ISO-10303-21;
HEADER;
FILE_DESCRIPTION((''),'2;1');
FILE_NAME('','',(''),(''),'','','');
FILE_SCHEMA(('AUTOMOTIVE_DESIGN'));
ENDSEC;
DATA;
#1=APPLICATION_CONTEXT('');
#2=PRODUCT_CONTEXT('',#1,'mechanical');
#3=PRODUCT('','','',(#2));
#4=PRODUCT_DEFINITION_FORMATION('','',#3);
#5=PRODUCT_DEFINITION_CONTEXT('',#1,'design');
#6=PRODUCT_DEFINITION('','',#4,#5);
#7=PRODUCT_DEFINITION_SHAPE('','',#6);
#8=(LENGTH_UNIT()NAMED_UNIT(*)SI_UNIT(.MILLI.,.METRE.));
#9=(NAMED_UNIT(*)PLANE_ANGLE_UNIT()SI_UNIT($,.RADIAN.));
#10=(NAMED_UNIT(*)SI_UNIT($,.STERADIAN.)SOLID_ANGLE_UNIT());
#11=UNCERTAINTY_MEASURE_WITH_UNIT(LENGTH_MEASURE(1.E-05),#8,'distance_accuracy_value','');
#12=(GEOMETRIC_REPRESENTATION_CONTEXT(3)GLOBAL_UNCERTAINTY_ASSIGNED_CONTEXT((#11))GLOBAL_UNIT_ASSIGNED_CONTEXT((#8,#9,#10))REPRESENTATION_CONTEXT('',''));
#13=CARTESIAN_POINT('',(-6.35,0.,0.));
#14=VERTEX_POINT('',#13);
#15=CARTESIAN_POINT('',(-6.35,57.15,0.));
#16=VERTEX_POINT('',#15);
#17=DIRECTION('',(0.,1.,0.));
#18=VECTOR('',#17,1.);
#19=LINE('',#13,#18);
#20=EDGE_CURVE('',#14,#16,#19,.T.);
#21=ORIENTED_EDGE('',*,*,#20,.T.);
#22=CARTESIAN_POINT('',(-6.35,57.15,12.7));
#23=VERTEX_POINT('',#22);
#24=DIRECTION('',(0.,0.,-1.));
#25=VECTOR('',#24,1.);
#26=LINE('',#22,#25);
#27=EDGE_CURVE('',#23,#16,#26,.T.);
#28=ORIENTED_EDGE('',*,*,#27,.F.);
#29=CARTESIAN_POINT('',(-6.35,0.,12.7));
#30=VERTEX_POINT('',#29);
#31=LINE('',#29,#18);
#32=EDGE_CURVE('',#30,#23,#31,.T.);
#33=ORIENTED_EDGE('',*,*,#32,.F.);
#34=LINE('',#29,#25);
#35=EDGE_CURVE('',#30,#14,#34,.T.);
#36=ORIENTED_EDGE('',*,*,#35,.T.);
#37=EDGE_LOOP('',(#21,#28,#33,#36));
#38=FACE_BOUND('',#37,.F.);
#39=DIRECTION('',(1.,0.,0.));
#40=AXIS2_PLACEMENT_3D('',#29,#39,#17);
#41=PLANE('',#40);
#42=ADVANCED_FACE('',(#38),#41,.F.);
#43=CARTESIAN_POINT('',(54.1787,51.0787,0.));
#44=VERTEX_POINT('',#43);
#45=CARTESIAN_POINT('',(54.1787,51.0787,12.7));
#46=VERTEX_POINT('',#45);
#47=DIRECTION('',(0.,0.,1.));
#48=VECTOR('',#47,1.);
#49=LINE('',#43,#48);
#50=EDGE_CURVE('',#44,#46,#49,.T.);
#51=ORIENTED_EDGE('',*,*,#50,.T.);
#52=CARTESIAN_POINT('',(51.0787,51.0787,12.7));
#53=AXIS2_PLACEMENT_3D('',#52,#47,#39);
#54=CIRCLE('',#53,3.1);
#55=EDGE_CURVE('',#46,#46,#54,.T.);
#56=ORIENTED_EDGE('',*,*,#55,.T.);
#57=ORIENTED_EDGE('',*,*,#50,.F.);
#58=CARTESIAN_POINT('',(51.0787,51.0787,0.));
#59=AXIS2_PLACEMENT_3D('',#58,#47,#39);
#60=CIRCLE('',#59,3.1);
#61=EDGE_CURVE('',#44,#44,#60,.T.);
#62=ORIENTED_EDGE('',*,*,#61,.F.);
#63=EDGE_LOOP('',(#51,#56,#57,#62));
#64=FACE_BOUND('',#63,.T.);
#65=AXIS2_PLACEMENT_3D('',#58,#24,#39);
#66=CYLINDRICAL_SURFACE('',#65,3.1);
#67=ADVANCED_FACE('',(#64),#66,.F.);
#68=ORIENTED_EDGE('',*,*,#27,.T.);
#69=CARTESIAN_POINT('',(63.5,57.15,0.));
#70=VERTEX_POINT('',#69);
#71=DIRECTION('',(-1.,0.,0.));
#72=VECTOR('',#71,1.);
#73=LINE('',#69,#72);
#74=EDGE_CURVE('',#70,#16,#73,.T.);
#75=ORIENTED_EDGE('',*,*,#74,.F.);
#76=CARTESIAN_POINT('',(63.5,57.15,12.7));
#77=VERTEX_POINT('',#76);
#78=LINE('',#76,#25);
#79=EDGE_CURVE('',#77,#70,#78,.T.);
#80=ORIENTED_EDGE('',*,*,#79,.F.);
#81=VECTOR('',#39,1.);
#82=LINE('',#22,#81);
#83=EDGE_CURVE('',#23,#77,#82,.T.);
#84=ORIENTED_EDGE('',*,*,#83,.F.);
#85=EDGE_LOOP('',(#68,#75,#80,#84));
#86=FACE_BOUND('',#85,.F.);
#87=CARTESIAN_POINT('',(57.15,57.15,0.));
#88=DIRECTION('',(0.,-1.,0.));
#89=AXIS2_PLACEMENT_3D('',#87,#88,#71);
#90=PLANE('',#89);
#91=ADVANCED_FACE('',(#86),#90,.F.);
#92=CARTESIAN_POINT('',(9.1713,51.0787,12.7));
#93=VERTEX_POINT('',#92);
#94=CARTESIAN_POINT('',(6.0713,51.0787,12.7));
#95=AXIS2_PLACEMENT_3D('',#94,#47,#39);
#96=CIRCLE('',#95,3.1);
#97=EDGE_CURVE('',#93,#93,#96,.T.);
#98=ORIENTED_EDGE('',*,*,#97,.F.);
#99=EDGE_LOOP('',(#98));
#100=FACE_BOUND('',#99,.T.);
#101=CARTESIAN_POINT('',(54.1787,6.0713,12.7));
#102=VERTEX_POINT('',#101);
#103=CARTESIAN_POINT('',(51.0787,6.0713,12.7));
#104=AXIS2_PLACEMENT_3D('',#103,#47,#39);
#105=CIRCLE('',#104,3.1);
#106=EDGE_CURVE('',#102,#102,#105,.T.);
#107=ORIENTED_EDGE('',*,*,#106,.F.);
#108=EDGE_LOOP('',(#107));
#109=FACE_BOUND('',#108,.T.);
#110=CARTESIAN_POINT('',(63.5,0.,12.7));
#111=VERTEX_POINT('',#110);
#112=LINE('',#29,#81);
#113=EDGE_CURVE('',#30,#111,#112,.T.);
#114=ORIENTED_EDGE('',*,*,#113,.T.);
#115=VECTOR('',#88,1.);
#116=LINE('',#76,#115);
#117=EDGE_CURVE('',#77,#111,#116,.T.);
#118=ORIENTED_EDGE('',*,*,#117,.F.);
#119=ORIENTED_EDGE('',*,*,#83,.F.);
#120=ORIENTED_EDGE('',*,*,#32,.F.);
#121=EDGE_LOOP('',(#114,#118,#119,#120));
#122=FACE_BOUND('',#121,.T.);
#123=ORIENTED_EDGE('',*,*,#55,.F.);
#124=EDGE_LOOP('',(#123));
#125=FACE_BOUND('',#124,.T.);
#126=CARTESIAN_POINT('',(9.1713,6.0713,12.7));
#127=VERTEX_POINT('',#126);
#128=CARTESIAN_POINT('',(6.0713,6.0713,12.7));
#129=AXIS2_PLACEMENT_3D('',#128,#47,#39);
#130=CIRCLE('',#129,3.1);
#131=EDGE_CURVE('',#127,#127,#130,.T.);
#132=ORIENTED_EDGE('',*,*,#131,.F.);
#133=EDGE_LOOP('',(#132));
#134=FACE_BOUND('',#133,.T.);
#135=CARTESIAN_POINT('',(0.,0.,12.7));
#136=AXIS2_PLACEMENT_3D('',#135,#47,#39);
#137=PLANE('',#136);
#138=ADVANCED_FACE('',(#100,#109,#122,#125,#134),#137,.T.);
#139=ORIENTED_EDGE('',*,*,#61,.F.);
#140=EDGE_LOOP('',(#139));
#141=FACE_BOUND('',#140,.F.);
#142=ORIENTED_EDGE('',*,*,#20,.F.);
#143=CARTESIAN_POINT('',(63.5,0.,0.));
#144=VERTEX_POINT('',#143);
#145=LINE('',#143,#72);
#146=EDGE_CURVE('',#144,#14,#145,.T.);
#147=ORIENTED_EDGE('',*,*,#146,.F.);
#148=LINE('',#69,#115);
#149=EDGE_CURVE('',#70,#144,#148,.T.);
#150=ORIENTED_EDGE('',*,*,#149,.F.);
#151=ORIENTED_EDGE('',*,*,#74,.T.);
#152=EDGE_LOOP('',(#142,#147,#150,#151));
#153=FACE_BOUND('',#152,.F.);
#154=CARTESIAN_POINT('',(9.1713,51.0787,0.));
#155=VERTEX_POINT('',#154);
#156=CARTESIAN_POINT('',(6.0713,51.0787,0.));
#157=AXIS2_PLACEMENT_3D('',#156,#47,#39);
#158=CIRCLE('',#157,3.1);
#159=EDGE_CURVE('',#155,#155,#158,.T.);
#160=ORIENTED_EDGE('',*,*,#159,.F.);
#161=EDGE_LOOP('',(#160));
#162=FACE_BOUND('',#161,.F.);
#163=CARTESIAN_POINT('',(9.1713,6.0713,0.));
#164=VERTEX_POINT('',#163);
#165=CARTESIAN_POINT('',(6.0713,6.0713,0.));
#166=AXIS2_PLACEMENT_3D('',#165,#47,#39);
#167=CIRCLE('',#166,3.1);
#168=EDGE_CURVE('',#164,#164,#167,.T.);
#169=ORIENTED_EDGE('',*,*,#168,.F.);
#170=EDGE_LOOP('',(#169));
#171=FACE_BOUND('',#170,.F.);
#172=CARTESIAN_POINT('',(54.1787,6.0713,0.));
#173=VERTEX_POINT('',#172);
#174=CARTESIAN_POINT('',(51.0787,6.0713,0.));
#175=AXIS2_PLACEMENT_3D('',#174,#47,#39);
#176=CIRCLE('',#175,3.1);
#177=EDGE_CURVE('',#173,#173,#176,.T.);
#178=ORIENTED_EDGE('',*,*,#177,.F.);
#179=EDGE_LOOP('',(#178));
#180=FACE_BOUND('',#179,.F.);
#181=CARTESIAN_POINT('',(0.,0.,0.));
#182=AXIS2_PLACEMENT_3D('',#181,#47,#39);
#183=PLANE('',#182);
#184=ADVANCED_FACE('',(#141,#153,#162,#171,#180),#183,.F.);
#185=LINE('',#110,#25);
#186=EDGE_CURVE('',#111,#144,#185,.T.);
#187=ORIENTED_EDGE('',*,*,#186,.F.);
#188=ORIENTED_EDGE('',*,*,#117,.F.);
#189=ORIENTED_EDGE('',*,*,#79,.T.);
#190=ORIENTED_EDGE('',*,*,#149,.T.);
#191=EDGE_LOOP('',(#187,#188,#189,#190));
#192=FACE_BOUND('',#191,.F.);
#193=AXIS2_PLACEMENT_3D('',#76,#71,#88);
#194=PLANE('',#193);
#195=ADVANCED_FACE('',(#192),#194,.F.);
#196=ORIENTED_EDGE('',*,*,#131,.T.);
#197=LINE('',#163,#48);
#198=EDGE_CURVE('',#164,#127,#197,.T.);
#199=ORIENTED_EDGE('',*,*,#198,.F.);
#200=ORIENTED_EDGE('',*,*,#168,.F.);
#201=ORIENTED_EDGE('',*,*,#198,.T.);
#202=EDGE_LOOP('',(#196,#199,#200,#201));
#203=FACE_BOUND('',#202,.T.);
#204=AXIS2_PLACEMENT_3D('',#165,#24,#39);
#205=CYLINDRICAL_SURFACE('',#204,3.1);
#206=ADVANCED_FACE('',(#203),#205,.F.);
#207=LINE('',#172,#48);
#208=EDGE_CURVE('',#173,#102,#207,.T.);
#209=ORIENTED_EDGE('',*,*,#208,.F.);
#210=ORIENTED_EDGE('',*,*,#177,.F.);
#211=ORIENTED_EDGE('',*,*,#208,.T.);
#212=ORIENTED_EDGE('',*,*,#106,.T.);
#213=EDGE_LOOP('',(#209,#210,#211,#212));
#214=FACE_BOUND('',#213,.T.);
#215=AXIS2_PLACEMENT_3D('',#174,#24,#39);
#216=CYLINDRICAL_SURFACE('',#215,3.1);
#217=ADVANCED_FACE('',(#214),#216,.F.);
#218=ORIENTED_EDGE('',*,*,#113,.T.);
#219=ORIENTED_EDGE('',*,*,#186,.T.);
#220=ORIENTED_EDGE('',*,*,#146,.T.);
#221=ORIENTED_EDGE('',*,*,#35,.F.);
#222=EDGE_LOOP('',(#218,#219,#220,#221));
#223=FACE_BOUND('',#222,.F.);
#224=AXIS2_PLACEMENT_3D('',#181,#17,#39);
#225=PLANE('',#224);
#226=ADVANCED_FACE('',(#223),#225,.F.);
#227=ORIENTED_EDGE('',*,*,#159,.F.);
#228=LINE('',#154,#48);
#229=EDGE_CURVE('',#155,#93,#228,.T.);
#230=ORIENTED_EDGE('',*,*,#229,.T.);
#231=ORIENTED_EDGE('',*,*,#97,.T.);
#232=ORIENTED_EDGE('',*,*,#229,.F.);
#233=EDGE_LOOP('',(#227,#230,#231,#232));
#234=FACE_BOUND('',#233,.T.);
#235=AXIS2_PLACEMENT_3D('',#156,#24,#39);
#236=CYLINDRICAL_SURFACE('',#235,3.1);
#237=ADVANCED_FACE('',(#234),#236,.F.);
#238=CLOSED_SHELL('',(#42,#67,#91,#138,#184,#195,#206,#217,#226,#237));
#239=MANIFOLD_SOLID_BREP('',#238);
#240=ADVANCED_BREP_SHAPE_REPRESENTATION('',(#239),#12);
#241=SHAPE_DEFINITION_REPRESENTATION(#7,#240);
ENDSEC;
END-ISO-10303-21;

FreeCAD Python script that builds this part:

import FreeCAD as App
import Part
import Sketcher
from FreeCAD import Vector
Q = App.Units.Quantity


def add_polygon(sketch, points):
    """Adds a closed chain of lines whose ends are joined by coincident constraints."""
    first, n = sketch.GeometryCount, len(points)
    for a, b in zip(points, points[1:] + points[:1]):
        sketch.addGeometry(Part.LineSegment(App.Vector(*a, 0), App.Vector(*b, 0)), False)
    for i in range(n):
        sketch.addConstraint(Sketcher.Constraint("Coincident", first + i, 2, first + (i + 1) % n, 1))

doc = App.newDocument("Part")
body = doc.addObject("PartDesign::Body", "Body")

sketch1 = doc.addObject("Sketcher::SketchObject", "Sketch")
body.addObject(sketch1)
sketch1.AttachmentSupport = (doc.XY_Plane, [""])
sketch1.MapMode = "FlatFace"
add_polygon(sketch1, [(0, 57.1), (0, 0), (57.1, 0), (57.1, 57.1)])
sketch1.addGeometry(Part.Circle(Vector(6.1, 6.1, 0), Vector(0, 0, 1), 3.1), False)
sketch1.addGeometry(Part.Circle(Vector(51.1, 6.1, 0), Vector(0, 0, 1), 3.1), False)
sketch1.addGeometry(Part.Circle(Vector(6.1, 51.1, 0), Vector(0, 0, 1), 3.1), False)
sketch1.addGeometry(Part.Circle(Vector(51.1, 51.1, 0), Vector(0, 0, 1), 3.1), False)
sketch1.addConstraint([
    Sketcher.Constraint("Vertical", 0),
    Sketcher.Constraint("Horizontal", 1),
    Sketcher.Constraint("Vertical", 2),
    Sketcher.Constraint("Horizontal", 3),
    Sketcher.Constraint("Coincident", 0, 2, -1, 1),
    Sketcher.Constraint("Equal", 4, 5),
    Sketcher.Constraint("Equal", 5, 6),
    Sketcher.Constraint("Equal", 6, 7),
    Sketcher.Constraint("Horizontal", 4, 3, 5, 3),
    Sketcher.Constraint("Horizontal", 6, 3, 7, 3),
    Sketcher.Constraint("Vertical", 4, 3, 6, 3),
    Sketcher.Constraint("Vertical", 5, 3, 7, 3),
    Sketcher.Constraint("Equal", 3, 0),
    Sketcher.Constraint("Diameter", 4, Q("0.2441 in")),
    Sketcher.Constraint("DistanceX", 1, 1, 1, 2, Q("2.25 in")),
    Sketcher.Constraint("DistanceX", -1, 1, 4, 3, Q("6.0713 mm")),
    Sketcher.Constraint("DistanceY", -1, 1, 4, 3, Q("6.0713 mm")),
    Sketcher.Constraint("DistanceX", -1, 1, 5, 3, Q("51.0787 mm")),
    Sketcher.Constraint("DistanceY", -1, 1, 6, 3, Q("51.0787 mm")),
])
pad1 = doc.addObject("PartDesign::Pad", "Pad")
body.addObject(pad1)
pad1.Profile = sketch1
pad1.Length = Q("0.5 in")

sketch2 = doc.addObject("Sketcher::SketchObject", "Sketch001")
body.addObject(sketch2)
sketch2.AttachmentSupport = (doc.XY_Plane, [""])
sketch2.MapMode = "FlatFace"
sketch2.AttachmentOffset = App.Placement(Vector(0, 0, 0.5 * 25.4), App.Rotation())
add_polygon(sketch2, [(-6, 0), (0, 0), (0, 57), (-6, 57)])
add_polygon(sketch2, [(57, 57), (57, 0), (64, 0), (64, 57)])
sketch2.addConstraint([
    Sketcher.Constraint("Horizontal", 0),
    Sketcher.Constraint("Vertical", 1),
    Sketcher.Constraint("Horizontal", 2),
    Sketcher.Constraint("Vertical", 3),
    Sketcher.Constraint("Vertical", 4),
    Sketcher.Constraint("Horizontal", 5),
    Sketcher.Constraint("Vertical", 6),
    Sketcher.Constraint("Horizontal", 7),
    Sketcher.Constraint("Coincident", 0, 2, -1, 1),
    Sketcher.Constraint("PointOnObject", 4, 2, -1),
    Sketcher.Constraint("Horizontal", 2, 2, 6, 2),
    Sketcher.Constraint("Equal", 2, 5),
    Sketcher.Constraint("DistanceX", 0, 1, 0, 2, Q("0.25 in")),
    Sketcher.Constraint("DistanceY", 1, 1, 1, 2, Q("2.25 in")),
    Sketcher.Constraint("DistanceX", -1, 1, 5, 2, Q("2.5 in")),
])
pad2 = doc.addObject("PartDesign::Pad", "Pad001")
body.addObject(pad2)
pad2.Profile = sketch2
pad2.Length = Q("0.5 in")
pad2.Reversed = True

doc.recompute()
